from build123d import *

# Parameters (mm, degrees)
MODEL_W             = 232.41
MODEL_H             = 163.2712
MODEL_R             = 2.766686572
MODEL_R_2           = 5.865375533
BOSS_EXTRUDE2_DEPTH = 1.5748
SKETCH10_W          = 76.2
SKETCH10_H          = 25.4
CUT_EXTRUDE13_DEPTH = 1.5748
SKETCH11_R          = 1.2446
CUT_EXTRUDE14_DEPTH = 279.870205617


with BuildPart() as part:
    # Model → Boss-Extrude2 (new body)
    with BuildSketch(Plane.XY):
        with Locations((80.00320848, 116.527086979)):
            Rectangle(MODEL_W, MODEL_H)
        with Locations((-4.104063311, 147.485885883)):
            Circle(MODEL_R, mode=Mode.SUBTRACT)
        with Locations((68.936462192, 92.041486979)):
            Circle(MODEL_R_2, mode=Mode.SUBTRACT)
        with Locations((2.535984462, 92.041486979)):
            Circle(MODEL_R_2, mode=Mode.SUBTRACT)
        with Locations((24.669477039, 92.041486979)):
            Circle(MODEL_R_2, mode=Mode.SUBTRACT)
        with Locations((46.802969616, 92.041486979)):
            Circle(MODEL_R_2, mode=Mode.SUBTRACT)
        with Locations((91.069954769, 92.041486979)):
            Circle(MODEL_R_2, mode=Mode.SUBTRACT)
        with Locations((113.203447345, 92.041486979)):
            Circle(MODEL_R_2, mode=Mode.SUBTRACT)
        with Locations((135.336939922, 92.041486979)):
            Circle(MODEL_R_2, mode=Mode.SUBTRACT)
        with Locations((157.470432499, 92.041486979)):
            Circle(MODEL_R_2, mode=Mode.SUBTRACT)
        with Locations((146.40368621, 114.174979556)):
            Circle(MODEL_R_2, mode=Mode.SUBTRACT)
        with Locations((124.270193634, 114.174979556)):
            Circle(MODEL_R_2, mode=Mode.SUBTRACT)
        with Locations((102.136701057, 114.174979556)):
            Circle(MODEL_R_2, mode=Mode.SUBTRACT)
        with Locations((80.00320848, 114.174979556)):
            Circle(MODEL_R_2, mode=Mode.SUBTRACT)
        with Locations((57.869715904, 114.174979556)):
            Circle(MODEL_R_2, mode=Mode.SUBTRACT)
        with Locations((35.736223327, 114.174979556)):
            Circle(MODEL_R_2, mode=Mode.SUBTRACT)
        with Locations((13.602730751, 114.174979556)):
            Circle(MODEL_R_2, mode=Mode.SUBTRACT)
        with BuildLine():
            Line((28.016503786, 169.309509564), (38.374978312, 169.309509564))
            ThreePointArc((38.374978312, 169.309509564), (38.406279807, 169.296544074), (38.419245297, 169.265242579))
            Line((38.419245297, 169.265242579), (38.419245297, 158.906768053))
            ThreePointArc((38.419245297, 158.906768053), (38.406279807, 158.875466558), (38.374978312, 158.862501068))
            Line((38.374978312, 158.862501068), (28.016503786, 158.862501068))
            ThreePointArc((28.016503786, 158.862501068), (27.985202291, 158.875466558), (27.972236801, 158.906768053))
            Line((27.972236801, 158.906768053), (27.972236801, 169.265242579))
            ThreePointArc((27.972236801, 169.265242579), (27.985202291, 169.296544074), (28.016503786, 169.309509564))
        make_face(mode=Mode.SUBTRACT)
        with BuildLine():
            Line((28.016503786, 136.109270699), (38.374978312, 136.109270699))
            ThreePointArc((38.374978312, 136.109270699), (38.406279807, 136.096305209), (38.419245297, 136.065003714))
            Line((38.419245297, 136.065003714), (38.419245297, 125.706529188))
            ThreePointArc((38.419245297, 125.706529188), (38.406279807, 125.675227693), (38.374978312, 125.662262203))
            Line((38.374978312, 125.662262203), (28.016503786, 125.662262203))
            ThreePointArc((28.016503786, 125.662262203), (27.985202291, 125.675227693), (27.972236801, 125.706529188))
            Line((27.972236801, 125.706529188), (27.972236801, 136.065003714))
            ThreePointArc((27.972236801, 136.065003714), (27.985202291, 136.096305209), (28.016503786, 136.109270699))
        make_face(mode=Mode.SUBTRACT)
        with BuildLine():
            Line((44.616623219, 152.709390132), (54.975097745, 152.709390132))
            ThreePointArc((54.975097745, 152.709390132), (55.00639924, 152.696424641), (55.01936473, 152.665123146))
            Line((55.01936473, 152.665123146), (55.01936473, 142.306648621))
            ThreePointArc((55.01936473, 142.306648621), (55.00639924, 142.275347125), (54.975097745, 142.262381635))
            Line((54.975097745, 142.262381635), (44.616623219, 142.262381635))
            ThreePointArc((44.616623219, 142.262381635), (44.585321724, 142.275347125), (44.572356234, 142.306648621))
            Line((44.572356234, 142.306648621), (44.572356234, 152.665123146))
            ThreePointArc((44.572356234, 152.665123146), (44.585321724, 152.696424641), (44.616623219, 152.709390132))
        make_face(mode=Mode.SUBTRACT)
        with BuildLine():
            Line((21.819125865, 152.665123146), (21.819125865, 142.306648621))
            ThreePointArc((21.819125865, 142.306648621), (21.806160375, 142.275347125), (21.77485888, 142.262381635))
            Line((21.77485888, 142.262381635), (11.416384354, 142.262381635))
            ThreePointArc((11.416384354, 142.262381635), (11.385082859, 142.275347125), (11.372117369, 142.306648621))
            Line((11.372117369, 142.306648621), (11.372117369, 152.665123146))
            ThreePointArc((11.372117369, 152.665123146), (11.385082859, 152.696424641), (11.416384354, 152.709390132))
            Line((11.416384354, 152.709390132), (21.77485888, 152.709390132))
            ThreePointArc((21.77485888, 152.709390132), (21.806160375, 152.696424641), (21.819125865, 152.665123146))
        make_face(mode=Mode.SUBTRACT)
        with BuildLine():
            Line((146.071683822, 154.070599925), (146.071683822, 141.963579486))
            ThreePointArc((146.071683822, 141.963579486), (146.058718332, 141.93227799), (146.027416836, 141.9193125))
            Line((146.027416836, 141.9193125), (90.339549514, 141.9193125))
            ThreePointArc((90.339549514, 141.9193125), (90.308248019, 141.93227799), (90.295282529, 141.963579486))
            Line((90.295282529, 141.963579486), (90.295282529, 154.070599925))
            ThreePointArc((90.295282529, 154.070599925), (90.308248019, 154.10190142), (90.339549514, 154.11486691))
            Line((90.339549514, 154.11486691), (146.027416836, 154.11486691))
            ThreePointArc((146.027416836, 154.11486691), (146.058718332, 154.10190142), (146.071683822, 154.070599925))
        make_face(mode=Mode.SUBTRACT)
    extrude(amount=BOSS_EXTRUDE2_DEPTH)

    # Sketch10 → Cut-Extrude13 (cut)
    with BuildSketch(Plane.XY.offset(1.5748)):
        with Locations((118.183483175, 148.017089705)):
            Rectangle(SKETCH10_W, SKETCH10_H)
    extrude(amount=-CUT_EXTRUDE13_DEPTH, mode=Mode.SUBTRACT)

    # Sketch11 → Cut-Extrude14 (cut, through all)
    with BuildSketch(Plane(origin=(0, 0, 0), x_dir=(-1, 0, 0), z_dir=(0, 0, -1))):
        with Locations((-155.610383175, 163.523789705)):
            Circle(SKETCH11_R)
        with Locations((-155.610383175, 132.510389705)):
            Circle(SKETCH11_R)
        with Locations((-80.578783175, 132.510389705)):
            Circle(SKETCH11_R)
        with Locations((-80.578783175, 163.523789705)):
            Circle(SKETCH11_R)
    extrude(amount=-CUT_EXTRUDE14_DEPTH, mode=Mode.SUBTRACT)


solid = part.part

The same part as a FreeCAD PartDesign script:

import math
import FreeCAD as App
import Part
import Sketcher
Q = App.Units.Quantity

doc = App.newDocument("Part")
body = doc.addObject("PartDesign::Body", "Body")

sketch1 = doc.addObject("Sketcher::SketchObject", "Sketch")
body.addObject(sketch1)
sketch1.AttachmentSupport = (doc.XY_Plane, [""])
sketch1.MapMode = "FlatFace"
sketch1.addGeometry([
    Part.LineSegment(App.Vector(-36.202, 198.163, 0), App.Vector(-36.202, 34.891, 0)),
    Part.LineSegment(App.Vector(-36.202, 34.891, 0), App.Vector(196.208, 34.891, 0)),
    Part.LineSegment(App.Vector(196.208, 34.891, 0), App.Vector(196.208, 198.163, 0)),
    Part.LineSegment(App.Vector(196.208, 198.163, 0), App.Vector(-36.202, 198.163, 0)),
    Part.Circle(App.Vector(2.536, 92.041, 0), App.Vector(0, 0, 1), 5.865),
    Part.Circle(App.Vector(24.669, 92.041, 0), App.Vector(0, 0, 1), 5.865),
    Part.Circle(App.Vector(46.803, 92.041, 0), App.Vector(0, 0, 1), 5.865),
    Part.Circle(App.Vector(68.936, 92.041, 0), App.Vector(0, 0, 1), 5.865),
    Part.Circle(App.Vector(13.603, 114.175, 0), App.Vector(0, 0, 1), 5.865),
    Part.Circle(App.Vector(35.736, 114.175, 0), App.Vector(0, 0, 1), 5.865),
    Part.Circle(App.Vector(57.87, 114.175, 0), App.Vector(0, 0, 1), 5.865),
    Part.Circle(App.Vector(91.07, 92.041, 0), App.Vector(0, 0, 1), 5.865),
    Part.Circle(App.Vector(113.203, 92.041, 0), App.Vector(0, 0, 1), 5.865),
    Part.Circle(App.Vector(135.337, 92.041, 0), App.Vector(0, 0, 1), 5.865),
    Part.Circle(App.Vector(157.47, 92.041, 0), App.Vector(0, 0, 1), 5.865),
    Part.Circle(App.Vector(80.003, 114.175, 0), App.Vector(0, 0, 1), 5.865),
    Part.Circle(App.Vector(102.137, 114.175, 0), App.Vector(0, 0, 1), 5.865),
    Part.Circle(App.Vector(124.27, 114.175, 0), App.Vector(0, 0, 1), 5.865),
    Part.Circle(App.Vector(146.404, 114.175, 0), App.Vector(0, 0, 1), 5.865),
    Part.ArcOfCircle(Part.Circle(App.Vector(28.017, 136.065, 0), App.Vector(0, 0, 1), 0.044), math.radians(90), math.radians(180)),
    Part.LineSegment(App.Vector(28.017, 136.109, 0), App.Vector(38.375, 136.109, 0)),
    Part.ArcOfCircle(Part.Circle(App.Vector(38.375, 136.065, 0), App.Vector(0, 0, 1), 0.044), math.radians(0), math.radians(90)),
    Part.LineSegment(App.Vector(38.419, 136.065, 0), App.Vector(38.419, 125.707, 0)),
    Part.ArcOfCircle(Part.Circle(App.Vector(38.375, 125.707, 0), App.Vector(0, 0, 1), 0.044), math.radians(-90), math.radians(0)),
    Part.LineSegment(App.Vector(38.375, 125.662, 0), App.Vector(28.017, 125.662, 0)),
    Part.ArcOfCircle(Part.Circle(App.Vector(28.017, 125.707, 0), App.Vector(0, 0, 1), 0.044), math.radians(180), math.radians(270)),
    Part.LineSegment(App.Vector(27.972, 125.707, 0), App.Vector(27.972, 136.065, 0)),
    Part.Circle(App.Vector(-4.104, 147.486, 0), App.Vector(0, 0, 1), 2.767),
    Part.ArcOfCircle(Part.Circle(App.Vector(21.775, 152.665, 0), App.Vector(0, 0, 1), 0.044), math.radians(0), math.radians(90)),
    Part.LineSegment(App.Vector(21.819, 152.665, 0), App.Vector(21.819, 142.307, 0)),
    Part.ArcOfCircle(Part.Circle(App.Vector(21.775, 142.307, 0), App.Vector(0, 0, 1), 0.044), math.radians(-90), math.radians(0)),
    Part.LineSegment(App.Vector(21.775, 142.262, 0), App.Vector(11.416, 142.262, 0)),
    Part.ArcOfCircle(Part.Circle(App.Vector(11.416, 142.307, 0), App.Vector(0, 0, 1), 0.044), math.radians(180), math.radians(270)),
    Part.LineSegment(App.Vector(11.372, 142.307, 0), App.Vector(11.372, 152.665, 0)),
    Part.ArcOfCircle(Part.Circle(App.Vector(11.416, 152.665, 0), App.Vector(0, 0, 1), 0.044), math.radians(90), math.radians(180)),
    Part.LineSegment(App.Vector(11.416, 152.709, 0), App.Vector(21.775, 152.709, 0)),
    Part.ArcOfCircle(Part.Circle(App.Vector(44.617, 152.665, 0), App.Vector(0, 0, 1), 0.044), math.radians(90), math.radians(180)),
    Part.LineSegment(App.Vector(44.617, 152.709, 0), App.Vector(54.975, 152.709, 0)),
    Part.ArcOfCircle(Part.Circle(App.Vector(54.975, 152.665, 0), App.Vector(0, 0, 1), 0.044), math.radians(0), math.radians(90)),
    Part.LineSegment(App.Vector(55.019, 152.665, 0), App.Vector(55.019, 142.307, 0)),
    Part.ArcOfCircle(Part.Circle(App.Vector(54.975, 142.307, 0), App.Vector(0, 0, 1), 0.044), math.radians(-90), math.radians(0)),
    Part.LineSegment(App.Vector(54.975, 142.262, 0), App.Vector(44.617, 142.262, 0)),
    Part.ArcOfCircle(Part.Circle(App.Vector(44.617, 142.307, 0), App.Vector(0, 0, 1), 0.044), math.radians(180), math.radians(270)),
    Part.LineSegment(App.Vector(44.572, 142.307, 0), App.Vector(44.572, 152.665, 0)),
    Part.ArcOfCircle(Part.Circle(App.Vector(28.017, 169.265, 0), App.Vector(0, 0, 1), 0.044), math.radians(90), math.radians(180)),
    Part.LineSegment(App.Vector(28.017, 169.31, 0), App.Vector(38.375, 169.31, 0)),
    Part.ArcOfCircle(Part.Circle(App.Vector(38.375, 169.265, 0), App.Vector(0, 0, 1), 0.044), math.radians(0), math.radians(90)),
    Part.LineSegment(App.Vector(38.419, 169.265, 0), App.Vector(38.419, 158.907, 0)),
    Part.ArcOfCircle(Part.Circle(App.Vector(38.375, 158.907, 0), App.Vector(0, 0, 1), 0.044), math.radians(-90), math.radians(0)),
    Part.LineSegment(App.Vector(38.375, 158.863, 0), App.Vector(28.017, 158.863, 0)),
    Part.ArcOfCircle(Part.Circle(App.Vector(28.017, 158.907, 0), App.Vector(0, 0, 1), 0.044), math.radians(180), math.radians(270)),
    Part.LineSegment(App.Vector(27.972, 158.907, 0), App.Vector(27.972, 169.265, 0)),
    Part.ArcOfCircle(Part.Circle(App.Vector(146.027, 154.071, 0), App.Vector(0, 0, 1), 0.044), math.radians(0), math.radians(90)),
    Part.LineSegment(App.Vector(146.072, 154.071, 0), App.Vector(146.072, 141.964, 0)),
    Part.ArcOfCircle(Part.Circle(App.Vector(146.027, 141.964, 0), App.Vector(0, 0, 1), 0.044), math.radians(-90), math.radians(0)),
    Part.LineSegment(App.Vector(146.027, 141.919, 0), App.Vector(90.34, 141.919, 0)),
    Part.ArcOfCircle(Part.Circle(App.Vector(90.34, 141.964, 0), App.Vector(0, 0, 1), 0.044), math.radians(180), math.radians(270)),
    Part.LineSegment(App.Vector(90.295, 141.964, 0), App.Vector(90.295, 154.071, 0)),
    Part.ArcOfCircle(Part.Circle(App.Vector(90.34, 154.071, 0), App.Vector(0, 0, 1), 0.044), math.radians(90), math.radians(180)),
    Part.LineSegment(App.Vector(90.34, 154.115, 0), App.Vector(146.027, 154.115, 0)),
], False)
sketch1.addConstraint([
    Sketcher.Constraint("Coincident", 0, 2, 1, 1),
    Sketcher.Constraint("Coincident", 1, 2, 2, 1),
    Sketcher.Constraint("Coincident", 2, 2, 3, 1),
    Sketcher.Constraint("Coincident", 3, 2, 0, 1),
    Sketcher.Constraint("Tangent", 19, 1, 20, 1),
    Sketcher.Constraint("Tangent", 20, 2, 21, 2),
    Sketcher.Constraint("Tangent", 21, 1, 22, 1),
    Sketcher.Constraint("Tangent", 22, 2, 23, 2),
    Sketcher.Constraint("Tangent", 23, 1, 24, 1),
    Sketcher.Constraint("Tangent", 24, 2, 25, 2),
    Sketcher.Constraint("Tangent", 25, 1, 26, 1),
    Sketcher.Constraint("Tangent", 26, 2, 19, 2),
    Sketcher.Constraint("Tangent", 28, 1, 29, 1),
    Sketcher.Constraint("Tangent", 29, 2, 30, 2),
    Sketcher.Constraint("Tangent", 30, 1, 31, 1),
    Sketcher.Constraint("Tangent", 31, 2, 32, 2),
    Sketcher.Constraint("Tangent", 32, 1, 33, 1),
    Sketcher.Constraint("Tangent", 33, 2, 34, 2),
    Sketcher.Constraint("Tangent", 34, 1, 35, 1),
    Sketcher.Constraint("Tangent", 35, 2, 28, 2),
    Sketcher.Constraint("Tangent", 36, 1, 37, 1),
    Sketcher.Constraint("Tangent", 37, 2, 38, 2),
    Sketcher.Constraint("Tangent", 38, 1, 39, 1),
    Sketcher.Constraint("Tangent", 39, 2, 40, 2),
    Sketcher.Constraint("Tangent", 40, 1, 41, 1),
    Sketcher.Constraint("Tangent", 41, 2, 42, 2),
    Sketcher.Constraint("Tangent", 42, 1, 43, 1),
    Sketcher.Constraint("Tangent", 43, 2, 36, 2),
    Sketcher.Constraint("Tangent", 44, 1, 45, 1),
    Sketcher.Constraint("Tangent", 45, 2, 46, 2),
    Sketcher.Constraint("Tangent", 46, 1, 47, 1),
    Sketcher.Constraint("Tangent", 47, 2, 48, 2),
    Sketcher.Constraint("Tangent", 48, 1, 49, 1),
    Sketcher.Constraint("Tangent", 49, 2, 50, 2),
    Sketcher.Constraint("Tangent", 50, 1, 51, 1),
    Sketcher.Constraint("Tangent", 51, 2, 44, 2),
    Sketcher.Constraint("Tangent", 52, 1, 53, 1),
    Sketcher.Constraint("Tangent", 53, 2, 54, 2),
    Sketcher.Constraint("Tangent", 54, 1, 55, 1),
    Sketcher.Constraint("Tangent", 55, 2, 56, 2),
    Sketcher.Constraint("Tangent", 56, 1, 57, 1),
    Sketcher.Constraint("Tangent", 57, 2, 58, 2),
    Sketcher.Constraint("Tangent", 58, 1, 59, 1),
    Sketcher.Constraint("Tangent", 59, 2, 52, 2),
    Sketcher.Constraint("Vertical", 0),
    Sketcher.Constraint("Horizontal", 1),
    Sketcher.Constraint("Vertical", 2),
    Sketcher.Constraint("Horizontal", 3),
    Sketcher.Constraint("Horizontal", 20),
    Sketcher.Constraint("Vertical", 22),
    Sketcher.Constraint("Horizontal", 24),
    Sketcher.Constraint("Vertical", 26),
    Sketcher.Constraint("Vertical", 29),
    Sketcher.Constraint("Horizontal", 31),
    Sketcher.Constraint("Vertical", 33),
    Sketcher.Constraint("Horizontal", 35),
    Sketcher.Constraint("Horizontal", 37),
    Sketcher.Constraint("Vertical", 39),
    Sketcher.Constraint("Horizontal", 41),
    Sketcher.Constraint("Vertical", 43),
    Sketcher.Constraint("Horizontal", 45),
    Sketcher.Constraint("Vertical", 47),
    Sketcher.Constraint("Horizontal", 49),
    Sketcher.Constraint("Vertical", 51),
    Sketcher.Constraint("Vertical", 53),
    Sketcher.Constraint("Horizontal", 55),
    Sketcher.Constraint("Vertical", 57),
    Sketcher.Constraint("Horizontal", 59),
    Sketcher.Constraint("Equal", 4, 5),
    Sketcher.Constraint("Equal", 5, 6),
    Sketcher.Constraint("Equal", 6, 7),
    Sketcher.Constraint("Equal", 7, 8),
    Sketcher.Constraint("Equal", 8, 9),
    Sketcher.Constraint("Equal", 9, 10),
    Sketcher.Constraint("Equal", 10, 11),
    Sketcher.Constraint("Equal", 11, 12),
    Sketcher.Constraint("Equal", 12, 13),
    Sketcher.Constraint("Equal", 13, 14),
    Sketcher.Constraint("Equal", 14, 15),
    Sketcher.Constraint("Equal", 15, 16),
    Sketcher.Constraint("Equal", 16, 17),
    Sketcher.Constraint("Equal", 17, 18),
    Sketcher.Constraint("Equal", 19, 21),
    Sketcher.Constraint("Equal", 21, 23),
    Sketcher.Constraint("Equal", 23, 25),
    Sketcher.Constraint("Equal", 25, 28),
    Sketcher.Constraint("Equal", 28, 30),
    Sketcher.Constraint("Equal", 30, 32),
    Sketcher.Constraint("Equal", 32, 34),
    Sketcher.Constraint("Equal", 34, 36),
    Sketcher.Constraint("Equal", 36, 38),
    Sketcher.Constraint("Equal", 38, 40),
    Sketcher.Constraint("Equal", 40, 42),
    Sketcher.Constraint("Equal", 42, 44),
    Sketcher.Constraint("Equal", 44, 46),
    Sketcher.Constraint("Equal", 46, 48),
    Sketcher.Constraint("Equal", 48, 50),
    Sketcher.Constraint("Equal", 50, 52),
    Sketcher.Constraint("Equal", 52, 54),
    Sketcher.Constraint("Equal", 54, 56),
    Sketcher.Constraint("Equal", 56, 58),
    Sketcher.Constraint("Horizontal", 4, 3, 5, 3),
    Sketcher.Constraint("Horizontal", 5, 3, 6, 3),
    Sketcher.Constraint("Horizontal", 6, 3, 7, 3),
    Sketcher.Constraint("Horizontal", 8, 3, 9, 3),
    Sketcher.Constraint("Horizontal", 9, 3, 10, 3),
    Sketcher.Constraint("Horizontal", 7, 3, 11, 3),
    Sketcher.Constraint("Horizontal", 11, 3, 12, 3),
    Sketcher.Constraint("Horizontal", 12, 3, 13, 3),
    Sketcher.Constraint("Horizontal", 13, 3, 14, 3),
    Sketcher.Constraint("Horizontal", 10, 3, 15, 3),
    Sketcher.Constraint("Horizontal", 15, 3, 16, 3),
    Sketcher.Constraint("Horizontal", 16, 3, 17, 3),
    Sketcher.Constraint("Horizontal", 17, 3, 18, 3),
    Sketcher.Constraint("Horizontal", 34, 3, 36, 3),
    Sketcher.Constraint("Horizontal", 32, 3, 40, 3),
    Sketcher.Constraint("Vertical", 25, 3, 44, 3),
    Sketcher.Constraint("Vertical", 23, 3, 46, 3),
    Sketcher.Constraint("Equal", 24, 31),
    Sketcher.Constraint("Equal", 35, 37),
    Sketcher.Constraint("Equal", 49, 22),
    Sketcher.Constraint("Equal", 26, 29),
    Sketcher.Constraint("Equal", 43, 47),
    Sketcher.Constraint("DistanceX", 1, 1, 1, 2, Q("9.15 in")),
    Sketcher.Constraint("DistanceY", 0, 2, 0, 1, Q("6.428 in")),
    Sketcher.Constraint("Diameter", 4, 11.730751),
    Sketcher.Constraint("Diameter", 27, 5.533373),
    Sketcher.Constraint("Radius", 19, 0.044267),
    Sketcher.Constraint("DistanceY", 53, 2, 53, 1, 12.10702),
    Sketcher.Constraint("DistanceX", -1, 1, 16, 3, 102.136701),
    Sketcher.Constraint("DistanceY", -1, 1, 52, 3, 154.0706),
    Sketcher.Constraint("DistanceY", -1, 1, 48, 1, 158.862501),
    Sketcher.Constraint("DistanceX", 20, 1, 20, 2, 10.358475),
    Sketcher.Constraint("DistanceX", 55, 2, 55, 1, 55.687867),
    Sketcher.Constraint("DistanceX", -1, 1, 6, 3, 46.80297),
    Sketcher.Constraint("DistanceX", -1, 1, 8, 3, 13.602731),
    Sketcher.Constraint("DistanceY", -1, 1, 8, 3, 114.17498),
    Sketcher.Constraint("DistanceX", -1, 1, 13, 3, 135.33694),
    Sketcher.Constraint("DistanceX", -1, 1, 15, 3, 80.003208),
    Sketcher.Constraint("DistanceX", -1, 1, 21, 3, 38.374978),
    Sketcher.Constraint("DistanceY", -1, 1, 23, 3, 125.706529),
    Sketcher.Constraint("DistanceX", -1, 1, 28, 3, 21.774859),
    Sketcher.Constraint("DistanceY", -1, 1, 30, 3, 142.306649),
    Sketcher.Constraint("DistanceX", -1, 1, 56, 3, 90.339549),
    Sketcher.Constraint("DistanceX", 0, 2, -1, 1, 36.201792),
    Sketcher.Constraint("DistanceX", -1, 1, 4, 3, 2.535984),
    Sketcher.Constraint("DistanceY", -1, 1, 4, 3, 92.041487),
    Sketcher.Constraint("DistanceX", -1, 1, 5, 3, 24.669477),
    Sketcher.Constraint("DistanceX", -1, 1, 7, 3, 68.936462),
    Sketcher.Constraint("DistanceX", -1, 1, 9, 3, 35.736223),
    Sketcher.Constraint("DistanceX", -1, 1, 10, 3, 57.869716),
    Sketcher.Constraint("DistanceX", -1, 1, 11, 3, 91.069955),
    Sketcher.Constraint("DistanceX", -1, 1, 12, 3, 113.203447),
    Sketcher.Constraint("DistanceX", -1, 1, 14, 3, 157.470432),
    Sketcher.Constraint("DistanceX", -1, 1, 17, 3, 124.270194),
    Sketcher.Constraint("DistanceX", -1, 1, 18, 3, 146.403686),
    Sketcher.Constraint("DistanceX", 27, 3, -1, 1, 4.104063),
    Sketcher.Constraint("DistanceY", -1, 1, 27, 3, 147.485886),
    Sketcher.Constraint("DistanceX", -1, 1, 36, 3, 44.616623),
    Sketcher.Constraint("DistanceY", -1, 1, 0, 2, 34.891487),
])
pad1 = doc.addObject("PartDesign::Pad", "Pad")
body.addObject(pad1)
pad1.Profile = sketch1
pad1.Length = Q("0.062 in")

sketch2 = doc.addObject("Sketcher::SketchObject", "Sketch001")
body.addObject(sketch2)
sketch2.AttachmentSupport = (doc.XY_Plane, [""])
sketch2.MapMode = "FlatFace"
sketch2.AttachmentOffset = App.Placement(App.Vector(0, 0, 0.062 * 25.4), App.Rotation())
sketch2.addGeometry([
    Part.LineSegment(App.Vector(80, 161, 0), App.Vector(80, 135, 0)),
    Part.LineSegment(App.Vector(80, 135, 0), App.Vector(156, 135, 0)),
    Part.LineSegment(App.Vector(156, 135, 0), App.Vector(156, 161, 0)),
    Part.LineSegment(App.Vector(156, 161, 0), App.Vector(80, 161, 0)),
], False)
sketch2.addConstraint([
    Sketcher.Constraint("Coincident", 0, 2, 1, 1),
    Sketcher.Constraint("Coincident", 1, 2, 2, 1),
    Sketcher.Constraint("Coincident", 2, 2, 3, 1),
    Sketcher.Constraint("Coincident", 3, 2, 0, 1),
    Sketcher.Constraint("Vertical", 0),
    Sketcher.Constraint("Horizontal", 1),
    Sketcher.Constraint("Vertical", 2),
    Sketcher.Constraint("Horizontal", 3),
    Sketcher.Constraint("DistanceX", 1, 1, 1, 2, Q("3 in")),
    Sketcher.Constraint("DistanceY", 0, 2, 0, 1, Q("1 in")),
    Sketcher.Constraint("DistanceY", -1, 1, 0, 2, 135.31709),
    Sketcher.Constraint("DistanceX", -1, 1, 0, 2, 80.083483),
])
pocket1 = doc.addObject("PartDesign::Pocket", "Pocket")
body.addObject(pocket1)
pocket1.Profile = sketch2
pocket1.Length = Q("0.062 in")

sketch3 = doc.addObject("Sketcher::SketchObject", "Sketch002")
body.addObject(sketch3)
sketch3.AttachmentSupport = (doc.XY_Plane, [""])
sketch3.MapMode = "FlatFace"
sketch3.addGeometry([
    Part.Circle(App.Vector(155.6, 163.5, 0), App.Vector(0, 0, 1), 1.2),
    Part.Circle(App.Vector(155.6, 132.5, 0), App.Vector(0, 0, 1), 1.2),
    Part.Circle(App.Vector(80.6, 132.5, 0), App.Vector(0, 0, 1), 1.2),
    Part.Circle(App.Vector(80.6, 163.5, 0), App.Vector(0, 0, 1), 1.2),
], False)
sketch3.addConstraint([
    Sketcher.Constraint("Equal", 0, 1),
    Sketcher.Constraint("Equal", 1, 2),
    Sketcher.Constraint("Equal", 2, 3),
    Sketcher.Constraint("Horizontal", 1, 3, 2, 3),
    Sketcher.Constraint("Horizontal", 0, 3, 3, 3),
    Sketcher.Constraint("Vertical", 0, 3, 1, 3),
    Sketcher.Constraint("Vertical", 2, 3, 3, 3),
    Sketcher.Constraint("Diameter", 0, Q("0.098 in")),
    Sketcher.Constraint("DistanceY", 1, 3, 0, 3, Q("1.221 in")),
    Sketcher.Constraint("DistanceX", 2, 3, 1, 3, Q("2.954 in")),
    Sketcher.Constraint("DistanceY", -1, 1, 0, 3, 163.52379),
    Sketcher.Constraint("DistanceX", -1, 1, 0, 3, 155.610383),
])
pocket2 = doc.addObject("PartDesign::Pocket", "Pocket001")
body.addObject(pocket2)
pocket2.Profile = sketch3
pocket2.Type = "ThroughAll"
pocket2.Reversed = True

doc.recompute()
